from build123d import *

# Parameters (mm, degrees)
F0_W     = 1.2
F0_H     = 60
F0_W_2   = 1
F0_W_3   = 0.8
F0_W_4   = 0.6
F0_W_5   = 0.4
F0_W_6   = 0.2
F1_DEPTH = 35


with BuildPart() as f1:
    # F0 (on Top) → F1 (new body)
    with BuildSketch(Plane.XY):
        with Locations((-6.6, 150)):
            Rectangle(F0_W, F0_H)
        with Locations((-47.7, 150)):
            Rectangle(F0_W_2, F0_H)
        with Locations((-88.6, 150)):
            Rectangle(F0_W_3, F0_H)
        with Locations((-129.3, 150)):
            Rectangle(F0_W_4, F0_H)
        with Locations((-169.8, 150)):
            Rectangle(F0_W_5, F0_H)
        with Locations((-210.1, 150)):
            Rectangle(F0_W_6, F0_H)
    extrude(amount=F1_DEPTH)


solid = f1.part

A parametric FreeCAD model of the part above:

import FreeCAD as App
import Part
import Sketcher

V = App.Vector
Q = App.Units.Quantity


def add_polygon(sketch, points):
    """Adds a closed chain of lines whose ends are joined by coincident constraints."""
    first, n = sketch.GeometryCount, len(points)
    for a, b in zip(points, points[1:] + points[:1]):
        sketch.addGeometry(Part.LineSegment(App.Vector(*a, 0), App.Vector(*b, 0)), False)
    for i in range(n):
        sketch.addConstraint(Sketcher.Constraint("Coincident", first + i, 2, first + (i + 1) % n, 1))

doc = App.newDocument("Part")
body = doc.addObject("PartDesign::Body", "Body")
body.AllowCompound = True

sketch1 = doc.addObject("Sketcher::SketchObject", "Sketch")
body.addObject(sketch1)
sketch1.AttachmentSupport = (doc.XY_Plane, [""])
sketch1.MapMode = "FlatFace"
add_polygon(sketch1, [(-7.2, 180), (-7.2, 120), (-6, 120), (-6, 180)])
add_polygon(sketch1, [(-48.2, 180), (-48.2, 120), (-47.2, 120), (-47.2, 180)])
add_polygon(sketch1, [(-89, 180), (-89, 120), (-88.2, 120), (-88.2, 180)])
add_polygon(sketch1, [(-129.6, 180), (-129.6, 120), (-129, 120), (-129, 180)])
add_polygon(sketch1, [(-170, 180), (-170, 120), (-169.6, 120), (-169.6, 180)])
add_polygon(sketch1, [(-210.2, 180), (-210.2, 120), (-210, 120), (-210, 180)])
sketch1.addConstraint([
    Sketcher.Constraint("Vertical", 0),
    Sketcher.Constraint("Horizontal", 1),
    Sketcher.Constraint("Vertical", 2),
    Sketcher.Constraint("Horizontal", 3),
    Sketcher.Constraint("Vertical", 4),
    Sketcher.Constraint("Horizontal", 5),
    Sketcher.Constraint("Vertical", 6),
    Sketcher.Constraint("Horizontal", 7),
    Sketcher.Constraint("Vertical", 8),
    Sketcher.Constraint("Horizontal", 9),
    Sketcher.Constraint("Vertical", 10),
    Sketcher.Constraint("Horizontal", 11),
    Sketcher.Constraint("Vertical", 12),
    Sketcher.Constraint("Horizontal", 13),
    Sketcher.Constraint("Vertical", 14),
    Sketcher.Constraint("Horizontal", 15),
    Sketcher.Constraint("Vertical", 16),
    Sketcher.Constraint("Horizontal", 17),
    Sketcher.Constraint("Vertical", 18),
    Sketcher.Constraint("Horizontal", 19),
    Sketcher.Constraint("Vertical", 20),
    Sketcher.Constraint("Horizontal", 21),
    Sketcher.Constraint("Vertical", 22),
    Sketcher.Constraint("Horizontal", 23),
    Sketcher.Constraint("Horizontal", 1, 2, 4, 2),
    Sketcher.Constraint("Horizontal", 3, 2, 6, 2),
    Sketcher.Constraint("Horizontal", 5, 2, 8, 2),
    Sketcher.Constraint("Horizontal", 7, 2, 10, 2),
    Sketcher.Constraint("Horizontal", 9, 2, 12, 2),
    Sketcher.Constraint("Horizontal", 11, 2, 14, 2),
    Sketcher.Constraint("Horizontal", 13, 2, 16, 2),
    Sketcher.Constraint("Horizontal", 15, 2, 18, 2),
    Sketcher.Constraint("Horizontal", 17, 2, 20, 2),
    Sketcher.Constraint("Horizontal", 19, 2, 22, 2),
    Sketcher.Constraint("DistanceX", 5, 1, 5, 2, Q("1 mm")),
    Sketcher.Constraint("DistanceY", 0, 2, 0, 1, Q("60 mm")),
    Sketcher.Constraint("DistanceX", 1, 1, 1, 2, Q("1.2 mm")),
    Sketcher.Constraint("DistanceX", 9, 1, 9, 2, Q("0.8 mm")),
    Sketcher.Constraint("DistanceX", 13, 1, 13, 2, Q("0.6 mm")),
    Sketcher.Constraint("DistanceX", 17, 1, 17, 2, Q("0.4 mm")),
    Sketcher.Constraint("DistanceX", 21, 1, 21, 2, Q("0.2 mm")),
    Sketcher.Constraint("DistanceY", -1, 1, 0, 2, Q("120 mm")),
    Sketcher.Constraint("DistanceX", 1, 2, -1, 1, Q("6 mm")),
    Sketcher.Constraint("DistanceX", 8, 2, -1, 1, Q("89 mm")),
    Sketcher.Constraint("DistanceX", 13, 2, -1, 1, Q("129 mm")),
    Sketcher.Constraint("DistanceX", 16, 2, -1, 1, Q("170 mm")),
    Sketcher.Constraint("DistanceX", 21, 2, -1, 1, Q("210 mm")),
    Sketcher.Constraint("DistanceX", 4, 2, 0, 2, Q("41 mm")),
])
pad1 = doc.addObject("PartDesign::Pad", "Pad")
body.addObject(pad1)
pad1.Profile = sketch1
pad1.Length = 35

doc.recompute()
